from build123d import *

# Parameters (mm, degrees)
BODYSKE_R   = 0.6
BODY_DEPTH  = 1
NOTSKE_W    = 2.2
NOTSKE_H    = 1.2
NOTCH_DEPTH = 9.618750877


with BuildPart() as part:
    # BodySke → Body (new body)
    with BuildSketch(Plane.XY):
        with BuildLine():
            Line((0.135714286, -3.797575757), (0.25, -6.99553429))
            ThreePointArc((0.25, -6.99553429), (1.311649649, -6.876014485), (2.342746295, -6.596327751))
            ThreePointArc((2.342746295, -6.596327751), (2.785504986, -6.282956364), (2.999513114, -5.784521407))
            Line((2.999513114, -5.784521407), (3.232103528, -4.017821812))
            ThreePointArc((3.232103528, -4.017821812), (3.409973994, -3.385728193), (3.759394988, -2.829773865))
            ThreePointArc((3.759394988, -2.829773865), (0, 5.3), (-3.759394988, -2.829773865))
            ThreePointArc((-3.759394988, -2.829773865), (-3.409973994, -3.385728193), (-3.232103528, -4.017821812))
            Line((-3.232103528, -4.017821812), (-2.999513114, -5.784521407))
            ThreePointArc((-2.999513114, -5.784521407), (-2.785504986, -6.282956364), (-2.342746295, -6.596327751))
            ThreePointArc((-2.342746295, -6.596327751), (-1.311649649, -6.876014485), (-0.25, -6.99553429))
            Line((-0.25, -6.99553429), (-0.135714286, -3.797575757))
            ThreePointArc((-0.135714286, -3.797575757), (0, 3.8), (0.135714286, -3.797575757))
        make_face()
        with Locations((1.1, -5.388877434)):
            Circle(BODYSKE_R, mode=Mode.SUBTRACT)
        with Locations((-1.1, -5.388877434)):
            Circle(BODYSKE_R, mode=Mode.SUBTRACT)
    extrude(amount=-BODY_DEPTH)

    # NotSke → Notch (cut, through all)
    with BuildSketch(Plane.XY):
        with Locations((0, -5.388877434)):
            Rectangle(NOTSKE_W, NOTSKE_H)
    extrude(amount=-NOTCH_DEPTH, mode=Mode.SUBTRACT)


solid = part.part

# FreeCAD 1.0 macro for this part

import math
import FreeCAD as App
import Part
import Sketcher
Q = App.Units.Quantity


def add_polygon(sketch, points):
    """Adds a closed chain of lines whose ends are joined by coincident constraints."""
    first, n = sketch.GeometryCount, len(points)
    for a, b in zip(points, points[1:] + points[:1]):
        sketch.addGeometry(Part.LineSegment(App.Vector(*a, 0), App.Vector(*b, 0)), False)
    for i in range(n):
        sketch.addConstraint(Sketcher.Constraint("Coincident", first + i, 2, first + (i + 1) % n, 1))

doc = App.newDocument("Part")
params = doc.addObject("Spreadsheet::Sheet", "Params")
for row, (alias, value) in enumerate([
    ("sketch1_radius", "7 mm"),
    ("sketch1_radius2", "1 mm"),
    ("sketch1_diameter", "1.2 mm"),
    ("sketch1_radius3", "3.8 mm"),
    ("pad1_length", "1 mm"),
    ("sketch2_width", "2.2 mm"),
    ("sketch2_height", "1.2 mm"),
], start=1):
    params.set(f"A{row}", alias)
    params.set(f"B{row}", "=" + value)
    params.setAlias(f"B{row}", alias)

body = doc.addObject("PartDesign::Body", "Body")

sketch1 = body.newObject("Sketcher::SketchObject", "Sketch")
sketch1.AttachmentSupport = (doc.getObject("XY_Plane"), [""])
sketch1.MapMode = "FlatFace"
sketch1.addGeometry([
    Part.LineSegment(App.Vector(0.14, -3.8, 0), App.Vector(0.25, -7, 0)),
    Part.ArcOfCircle(Part.Circle(App.Vector(0, 0, 0), App.Vector(0, 0, 1), 7), math.radians(-87.95), math.radians(-70.45)),
    Part.ArcOfCircle(Part.Circle(App.Vector(2.01, -5.65, 0), App.Vector(0, 0, 1), 1), math.radians(-70), math.radians(-7)),
    Part.LineSegment(App.Vector(3, -5.78, 0), App.Vector(3.23, -4.02, 0)),
    Part.ArcOfCircle(Part.Circle(App.Vector(5.51, -4.32, 0), App.Vector(0, 0, 1), 2.3), math.radians(140), math.radians(173)),
    Part.ArcOfCircle(Part.Circle(App.Vector(0, 0.37, 0), App.Vector(0, 0, 1), 4.93), math.radians(-40), math.radians(220)),
    Part.ArcOfCircle(Part.Circle(App.Vector(-5.51, -4.32, 0), App.Vector(0, 0, 1), 2.3), math.radians(7), math.radians(40)),
    Part.LineSegment(App.Vector(-3.23, -4.02, 0), App.Vector(-3, -5.78, 0)),
    Part.ArcOfCircle(Part.Circle(App.Vector(-2.01, -5.65, 0), App.Vector(0, 0, 1), 1), math.radians(-173), math.radians(-110)),
    Part.ArcOfCircle(Part.Circle(App.Vector(0, 0, 0), App.Vector(0, 0, 1), 7), math.radians(-109.55), math.radians(-92.05)),
    Part.LineSegment(App.Vector(-0.25, -7, 0), App.Vector(-0.14, -3.8, 0)),
    Part.ArcOfCircle(Part.Circle(App.Vector(0, 0, 0), App.Vector(0, 0, 1), 3.8), math.radians(-88), math.radians(268)),
    Part.Circle(App.Vector(-1.1, -5.39, 0), App.Vector(0, 0, 1), 0.6),
    Part.Circle(App.Vector(1.1, -5.39, 0), App.Vector(0, 0, 1), 0.6),
], False)
sketch1.addConstraint([
    Sketcher.Constraint("Coincident", 0, 2, 1, 1),
    Sketcher.Constraint("Tangent", 1, 2, 2, 1),
    Sketcher.Constraint("Tangent", 2, 2, 3, 1),
    Sketcher.Constraint("Tangent", 3, 2, 4, 2),
    Sketcher.Constraint("Tangent", 4, 1, 5, 1),
    Sketcher.Constraint("Tangent", 5, 2, 6, 2),
    Sketcher.Constraint("Tangent", 6, 1, 7, 1),
    Sketcher.Constraint("Tangent", 7, 2, 8, 1),
    Sketcher.Constraint("Tangent", 8, 2, 9, 1),
    Sketcher.Constraint("Coincident", 9, 2, 10, 1),
    Sketcher.Constraint("Coincident", 10, 2, 11, 2),
    Sketcher.Constraint("Coincident", 11, 1, 0, 1),
    Sketcher.Constraint("Coincident", 1, 3, -1, 1),
    Sketcher.Constraint("Coincident", 9, 3, -1, 1),
    Sketcher.Constraint("Coincident", 11, 3, -1, 1),
    Sketcher.Constraint("Equal", 4, 6),
    Sketcher.Constraint("Equal", 2, 8),
    Sketcher.Constraint("Equal", 1, 9),
    Sketcher.Constraint("Equal", 12, 13),
    Sketcher.Constraint("Symmetric", 4, 3, 6, 3, -2),
    Sketcher.Constraint("Symmetric", 12, 3, 13, 3, -2),
    Sketcher.Constraint("Horizontal", 2, 3, 8, 3),
    Sketcher.Constraint("Horizontal", 0, 2, 9, 2),
    Sketcher.Constraint("Horizontal", 10, 2, 11, 1),
    Sketcher.Constraint("Radius", 1, Q("7 mm")),
    Sketcher.Constraint("Radius", 2, Q("1 mm")),
    Sketcher.Constraint("Diameter", 12, Q("1.2 mm")),
    Sketcher.Constraint("Radius", 11, Q("3.8 mm")),
    Sketcher.Constraint("Angle", 3, Q("82.5 deg")),
    Sketcher.Constraint("DistanceX", 12, 3, -1, 1, Q("1.1 mm")),
    Sketcher.Constraint("DistanceX", 9, 2, 0, 2, Q("0.5 mm")),
    Sketcher.Constraint("Radius", 4, Q("2.297325 mm")),
    Sketcher.Constraint("Radius", 5, Q("4.934102 mm")),
    Sketcher.Constraint("DistanceY", 2, 2, 3, 2, Q("1.7667 mm")),
    Sketcher.Constraint("DistanceY", 12, 3, 10, 2, Q("1.591302 mm")),
    Sketcher.Constraint("DistanceX", -1, 1, 2, 3, Q("2.008068 mm")),
    Sketcher.Constraint("DistanceY", 1, 2, 13, 3, Q("1.20745 mm")),
])
sketch1.setExpression("Constraints[24]", "Params.sketch1_radius")
sketch1.setExpression("Constraints[25]", "Params.sketch1_radius2")
sketch1.setExpression("Constraints[26]", "Params.sketch1_diameter")
sketch1.setExpression("Constraints[27]", "Params.sketch1_radius3")
pad1 = body.newObject("PartDesign::Pad", "Pad")
pad1.Profile = sketch1
pad1.setExpression("Length", "Params.pad1_length")
pad1.Reversed = True

sketch2 = body.newObject("Sketcher::SketchObject", "Sketch001")
sketch2.AttachmentSupport = (doc.getObject("XY_Plane"), [""])
sketch2.MapMode = "FlatFace"
add_polygon(sketch2, [(-1.1, -4.8), (-1.1, -6), (1.1, -6), (1.1, -4.8)])
sketch2.addConstraint([
    Sketcher.Constraint("Vertical", 0),
    Sketcher.Constraint("Horizontal", 1),
    Sketcher.Constraint("Vertical", 2),
    Sketcher.Constraint("Horizontal", 3),
    Sketcher.Constraint("DistanceX", 1, 1, 1, 2, Q("2.2 mm")),
    Sketcher.Constraint("DistanceY", 0, 2, 0, 1, Q("1.2 mm")),
    Sketcher.Constraint("DistanceX", 0, 2, -1, 1, Q("1.1 mm")),
    Sketcher.Constraint("DistanceY", 0, 2, -1, 1, Q("5.988877 mm")),
])
sketch2.setExpression("Constraints[8]", "Params.sketch2_width")
sketch2.setExpression("Constraints[9]", "Params.sketch2_height")
pocket1 = body.newObject("PartDesign::Pocket", "Pocket")
pocket1.Profile = sketch2
pocket1.Type = "ThroughAll"

doc.recompute()
